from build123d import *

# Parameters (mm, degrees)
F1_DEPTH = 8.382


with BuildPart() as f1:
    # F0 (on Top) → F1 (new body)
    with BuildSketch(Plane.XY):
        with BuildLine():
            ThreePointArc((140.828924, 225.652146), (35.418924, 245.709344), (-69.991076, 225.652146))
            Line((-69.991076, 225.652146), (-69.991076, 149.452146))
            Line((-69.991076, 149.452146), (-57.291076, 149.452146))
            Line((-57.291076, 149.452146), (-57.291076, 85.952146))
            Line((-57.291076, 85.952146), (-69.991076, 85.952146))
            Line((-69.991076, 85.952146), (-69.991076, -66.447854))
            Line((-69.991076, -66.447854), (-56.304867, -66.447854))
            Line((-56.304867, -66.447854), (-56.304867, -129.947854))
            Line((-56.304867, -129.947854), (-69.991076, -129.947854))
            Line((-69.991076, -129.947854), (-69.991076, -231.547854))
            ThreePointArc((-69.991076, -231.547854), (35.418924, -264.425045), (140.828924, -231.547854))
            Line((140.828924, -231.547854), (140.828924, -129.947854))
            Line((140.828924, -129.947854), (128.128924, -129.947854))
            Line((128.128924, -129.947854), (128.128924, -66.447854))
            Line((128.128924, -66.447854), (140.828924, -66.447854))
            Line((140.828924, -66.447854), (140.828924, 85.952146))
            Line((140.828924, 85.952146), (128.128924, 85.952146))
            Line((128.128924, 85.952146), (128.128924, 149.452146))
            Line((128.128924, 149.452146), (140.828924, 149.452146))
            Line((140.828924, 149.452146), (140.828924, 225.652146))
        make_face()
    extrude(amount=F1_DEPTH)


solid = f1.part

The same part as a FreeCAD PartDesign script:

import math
import FreeCAD as App
import Part
import Sketcher
Q = App.Units.Quantity

doc = App.newDocument("Part")
params = doc.addObject("Spreadsheet::Sheet", "Params")
for row, (alias, value) in enumerate([
    ("sketch1_radius", "7.3000002 in"),
    ("sketch1_height", "3 in"),
    ("sketch1_height2", "6 in"),
    ("sketch1_height3", "4 in"),
    ("sketch1_width", "0.5 in"),
    ("pad1_length", "0.33 in"),
], start=1):
    params.set(f"A{row}", alias)
    params.set(f"B{row}", "=" + value)
    params.setAlias(f"B{row}", alias)

body = doc.addObject("PartDesign::Body", "Body")

# Sketch on XY plane
sketch1 = doc.addObject("Sketcher::SketchObject", "Sketch")
body.addObject(sketch1)
sketch1.AttachmentSupport = (doc.XY_Plane, [""])
sketch1.MapMode = "FlatFace"
sketch1.addGeometry(Part.ArcOfCircle(Part.Circle(App.Vector(35, -41, 0), App.Vector(0, 0, 1), 287), math.radians(68), math.radians(112)), False)
sketch1.addGeometry(Part.LineSegment(App.Vector(-70, 226, 0), App.Vector(-70, 149, 0)), False)
sketch1.addGeometry(Part.LineSegment(App.Vector(-70, 149, 0), App.Vector(-57, 149, 0)), False)
sketch1.addGeometry(Part.LineSegment(App.Vector(-57, 149, 0), App.Vector(-57, 86, 0)), False)
sketch1.addGeometry(Part.LineSegment(App.Vector(-57, 86, 0), App.Vector(-70, 86, 0)), False)
sketch1.addGeometry(Part.LineSegment(App.Vector(-70, 86, 0), App.Vector(-70, -66, 0)), False)
sketch1.addGeometry(Part.LineSegment(App.Vector(-70, -66, 0), App.Vector(-56, -66, 0)), False)
sketch1.addGeometry(Part.LineSegment(App.Vector(-56, -66, 0), App.Vector(-56, -130, 0)), False)
sketch1.addGeometry(Part.LineSegment(App.Vector(-56, -130, 0), App.Vector(-70, -130, 0)), False)
sketch1.addGeometry(Part.LineSegment(App.Vector(-70, -130, 0), App.Vector(-70, -232, 0)), False)
sketch1.addGeometry(Part.ArcOfCircle(Part.Circle(App.Vector(35, -79, 0), App.Vector(0, 0, 1), 185), math.radians(-125), math.radians(-55)), False)
sketch1.addGeometry(Part.LineSegment(App.Vector(141, -232, 0), App.Vector(141, -130, 0)), False)
sketch1.addGeometry(Part.LineSegment(App.Vector(141, -130, 0), App.Vector(128, -130, 0)), False)
sketch1.addGeometry(Part.LineSegment(App.Vector(128, -130, 0), App.Vector(128, -66, 0)), False)
sketch1.addGeometry(Part.LineSegment(App.Vector(128, -66, 0), App.Vector(141, -66, 0)), False)
sketch1.addGeometry(Part.LineSegment(App.Vector(141, -66, 0), App.Vector(141, 86, 0)), False)
sketch1.addGeometry(Part.LineSegment(App.Vector(141, 86, 0), App.Vector(128, 86, 0)), False)
sketch1.addGeometry(Part.LineSegment(App.Vector(128, 86, 0), App.Vector(128, 149, 0)), False)
sketch1.addGeometry(Part.LineSegment(App.Vector(128, 149, 0), App.Vector(141, 149, 0)), False)
sketch1.addGeometry(Part.LineSegment(App.Vector(141, 149, 0), App.Vector(141, 226, 0)), False)
sketch1.addConstraint(Sketcher.Constraint("Coincident", 0, 2, 1, 1))
sketch1.addConstraint(Sketcher.Constraint("Coincident", 1, 2, 2, 1))
sketch1.addConstraint(Sketcher.Constraint("Coincident", 2, 2, 3, 1))
sketch1.addConstraint(Sketcher.Constraint("Coincident", 3, 2, 4, 1))
sketch1.addConstraint(Sketcher.Constraint("Coincident", 4, 2, 5, 1))
sketch1.addConstraint(Sketcher.Constraint("Coincident", 5, 2, 6, 1))
sketch1.addConstraint(Sketcher.Constraint("Coincident", 6, 2, 7, 1))
sketch1.addConstraint(Sketcher.Constraint("Coincident", 7, 2, 8, 1))
sketch1.addConstraint(Sketcher.Constraint("Coincident", 8, 2, 9, 1))
sketch1.addConstraint(Sketcher.Constraint("Coincident", 9, 2, 10, 1))
sketch1.addConstraint(Sketcher.Constraint("Coincident", 10, 2, 11, 1))
sketch1.addConstraint(Sketcher.Constraint("Coincident", 11, 2, 12, 1))
sketch1.addConstraint(Sketcher.Constraint("Coincident", 12, 2, 13, 1))
sketch1.addConstraint(Sketcher.Constraint("Coincident", 13, 2, 14, 1))
sketch1.addConstraint(Sketcher.Constraint("Coincident", 14, 2, 15, 1))
sketch1.addConstraint(Sketcher.Constraint("Coincident", 15, 2, 16, 1))
sketch1.addConstraint(Sketcher.Constraint("Coincident", 16, 2, 17, 1))
sketch1.addConstraint(Sketcher.Constraint("Coincident", 17, 2, 18, 1))
sketch1.addConstraint(Sketcher.Constraint("Coincident", 18, 2, 19, 1))
sketch1.addConstraint(Sketcher.Constraint("Coincident", 19, 2, 0, 1))
sketch1.addConstraint(Sketcher.Constraint("Vertical", 1))
sketch1.addConstraint(Sketcher.Constraint("Horizontal", 2))
sketch1.addConstraint(Sketcher.Constraint("Vertical", 3))
sketch1.addConstraint(Sketcher.Constraint("Horizontal", 4))
sketch1.addConstraint(Sketcher.Constraint("Vertical", 5))
sketch1.addConstraint(Sketcher.Constraint("Horizontal", 6))
sketch1.addConstraint(Sketcher.Constraint("Vertical", 7))
sketch1.addConstraint(Sketcher.Constraint("Horizontal", 8))
sketch1.addConstraint(Sketcher.Constraint("Vertical", 9))
sketch1.addConstraint(Sketcher.Constraint("Vertical", 11))
sketch1.addConstraint(Sketcher.Constraint("Horizontal", 12))
sketch1.addConstraint(Sketcher.Constraint("Vertical", 13))
sketch1.addConstraint(Sketcher.Constraint("Horizontal", 14))
sketch1.addConstraint(Sketcher.Constraint("Vertical", 15))
sketch1.addConstraint(Sketcher.Constraint("Horizontal", 16))
sketch1.addConstraint(Sketcher.Constraint("Vertical", 17))
sketch1.addConstraint(Sketcher.Constraint("Horizontal", 18))
sketch1.addConstraint(Sketcher.Constraint("Vertical", 19))
sketch1.addConstraint(Sketcher.Constraint("Horizontal", 9, 2, 10, 2))
sketch1.addConstraint(Sketcher.Constraint("Horizontal", 8, 2, 11, 2))
sketch1.addConstraint(Sketcher.Constraint("Horizontal", 6, 2, 13, 2))
sketch1.addConstraint(Sketcher.Constraint("Horizontal", 4, 2, 15, 2))
sketch1.addConstraint(Sketcher.Constraint("Horizontal", 2, 2, 17, 2))
sketch1.addConstraint(Sketcher.Constraint("Horizontal", 0, 2, 19, 2))
sketch1.addConstraint(Sketcher.Constraint("Vertical", 0, 3, 10, 3))
sketch1.addConstraint(Sketcher.Constraint("Vertical", 1, 2, 4, 2))
sketch1.addConstraint(Sketcher.Constraint("Vertical", 5, 2, 8, 2))
sketch1.addConstraint(Sketcher.Constraint("Vertical", 11, 2, 14, 2))
sketch1.addConstraint(Sketcher.Constraint("Vertical", 13, 2, 16, 2))
sketch1.addConstraint(Sketcher.Constraint("Equal", 4, 12))
sketch1.addConstraint(Sketcher.Constraint("Equal", 3, 7))
sketch1.addConstraint(Sketcher.Constraint("Radius", 10, Q("7.3000002 in")))
sketch1.addConstraint(Sketcher.Constraint("DistanceY", 1, 2, 1, 1, Q("3 in")))
sketch1.addConstraint(Sketcher.Constraint("DistanceY", 5, 2, 5, 1, Q("6 in")))
sketch1.addConstraint(Sketcher.Constraint("DistanceY", 9, 2, 9, 1, Q("4 in")))
sketch1.addConstraint(Sketcher.Constraint("DistanceX", 2, 1, 2, 2, Q("0.5 in")))
sketch1.addConstraint(Sketcher.Constraint("DistanceY", 3, 2, 3, 1, Q("2.5 in")))
sketch1.addConstraint(Sketcher.Constraint("DistanceX", 9, 2, 10, 2, Q("8.3 in")))
sketch1.addConstraint(Sketcher.Constraint("Radius", 0, 287.018139))
sketch1.addConstraint(Sketcher.Constraint("DistanceX", 6, 1, 6, 2, 13.686209))
sketch1.addConstraint(Sketcher.Constraint("DistanceY", 10, 3, -1, 1, 79.005041))
sketch1.addConstraint(Sketcher.Constraint("DistanceX", -1, 1, 0, 3, 35.418924))
sketch1.setExpression("Constraints[51]", "Params.sketch1_radius")
sketch1.setExpression("Constraints[52]", "Params.sketch1_height")
sketch1.setExpression("Constraints[53]", "Params.sketch1_height2")
sketch1.setExpression("Constraints[54]", "Params.sketch1_height3")
sketch1.setExpression("Constraints[55]", "Params.sketch1_width")
pad1 = doc.addObject("PartDesign::Pad", "Pad")
body.addObject(pad1)
pad1.Profile = sketch1
pad1.setExpression("Length", "Params.pad1_length")

doc.recompute()
